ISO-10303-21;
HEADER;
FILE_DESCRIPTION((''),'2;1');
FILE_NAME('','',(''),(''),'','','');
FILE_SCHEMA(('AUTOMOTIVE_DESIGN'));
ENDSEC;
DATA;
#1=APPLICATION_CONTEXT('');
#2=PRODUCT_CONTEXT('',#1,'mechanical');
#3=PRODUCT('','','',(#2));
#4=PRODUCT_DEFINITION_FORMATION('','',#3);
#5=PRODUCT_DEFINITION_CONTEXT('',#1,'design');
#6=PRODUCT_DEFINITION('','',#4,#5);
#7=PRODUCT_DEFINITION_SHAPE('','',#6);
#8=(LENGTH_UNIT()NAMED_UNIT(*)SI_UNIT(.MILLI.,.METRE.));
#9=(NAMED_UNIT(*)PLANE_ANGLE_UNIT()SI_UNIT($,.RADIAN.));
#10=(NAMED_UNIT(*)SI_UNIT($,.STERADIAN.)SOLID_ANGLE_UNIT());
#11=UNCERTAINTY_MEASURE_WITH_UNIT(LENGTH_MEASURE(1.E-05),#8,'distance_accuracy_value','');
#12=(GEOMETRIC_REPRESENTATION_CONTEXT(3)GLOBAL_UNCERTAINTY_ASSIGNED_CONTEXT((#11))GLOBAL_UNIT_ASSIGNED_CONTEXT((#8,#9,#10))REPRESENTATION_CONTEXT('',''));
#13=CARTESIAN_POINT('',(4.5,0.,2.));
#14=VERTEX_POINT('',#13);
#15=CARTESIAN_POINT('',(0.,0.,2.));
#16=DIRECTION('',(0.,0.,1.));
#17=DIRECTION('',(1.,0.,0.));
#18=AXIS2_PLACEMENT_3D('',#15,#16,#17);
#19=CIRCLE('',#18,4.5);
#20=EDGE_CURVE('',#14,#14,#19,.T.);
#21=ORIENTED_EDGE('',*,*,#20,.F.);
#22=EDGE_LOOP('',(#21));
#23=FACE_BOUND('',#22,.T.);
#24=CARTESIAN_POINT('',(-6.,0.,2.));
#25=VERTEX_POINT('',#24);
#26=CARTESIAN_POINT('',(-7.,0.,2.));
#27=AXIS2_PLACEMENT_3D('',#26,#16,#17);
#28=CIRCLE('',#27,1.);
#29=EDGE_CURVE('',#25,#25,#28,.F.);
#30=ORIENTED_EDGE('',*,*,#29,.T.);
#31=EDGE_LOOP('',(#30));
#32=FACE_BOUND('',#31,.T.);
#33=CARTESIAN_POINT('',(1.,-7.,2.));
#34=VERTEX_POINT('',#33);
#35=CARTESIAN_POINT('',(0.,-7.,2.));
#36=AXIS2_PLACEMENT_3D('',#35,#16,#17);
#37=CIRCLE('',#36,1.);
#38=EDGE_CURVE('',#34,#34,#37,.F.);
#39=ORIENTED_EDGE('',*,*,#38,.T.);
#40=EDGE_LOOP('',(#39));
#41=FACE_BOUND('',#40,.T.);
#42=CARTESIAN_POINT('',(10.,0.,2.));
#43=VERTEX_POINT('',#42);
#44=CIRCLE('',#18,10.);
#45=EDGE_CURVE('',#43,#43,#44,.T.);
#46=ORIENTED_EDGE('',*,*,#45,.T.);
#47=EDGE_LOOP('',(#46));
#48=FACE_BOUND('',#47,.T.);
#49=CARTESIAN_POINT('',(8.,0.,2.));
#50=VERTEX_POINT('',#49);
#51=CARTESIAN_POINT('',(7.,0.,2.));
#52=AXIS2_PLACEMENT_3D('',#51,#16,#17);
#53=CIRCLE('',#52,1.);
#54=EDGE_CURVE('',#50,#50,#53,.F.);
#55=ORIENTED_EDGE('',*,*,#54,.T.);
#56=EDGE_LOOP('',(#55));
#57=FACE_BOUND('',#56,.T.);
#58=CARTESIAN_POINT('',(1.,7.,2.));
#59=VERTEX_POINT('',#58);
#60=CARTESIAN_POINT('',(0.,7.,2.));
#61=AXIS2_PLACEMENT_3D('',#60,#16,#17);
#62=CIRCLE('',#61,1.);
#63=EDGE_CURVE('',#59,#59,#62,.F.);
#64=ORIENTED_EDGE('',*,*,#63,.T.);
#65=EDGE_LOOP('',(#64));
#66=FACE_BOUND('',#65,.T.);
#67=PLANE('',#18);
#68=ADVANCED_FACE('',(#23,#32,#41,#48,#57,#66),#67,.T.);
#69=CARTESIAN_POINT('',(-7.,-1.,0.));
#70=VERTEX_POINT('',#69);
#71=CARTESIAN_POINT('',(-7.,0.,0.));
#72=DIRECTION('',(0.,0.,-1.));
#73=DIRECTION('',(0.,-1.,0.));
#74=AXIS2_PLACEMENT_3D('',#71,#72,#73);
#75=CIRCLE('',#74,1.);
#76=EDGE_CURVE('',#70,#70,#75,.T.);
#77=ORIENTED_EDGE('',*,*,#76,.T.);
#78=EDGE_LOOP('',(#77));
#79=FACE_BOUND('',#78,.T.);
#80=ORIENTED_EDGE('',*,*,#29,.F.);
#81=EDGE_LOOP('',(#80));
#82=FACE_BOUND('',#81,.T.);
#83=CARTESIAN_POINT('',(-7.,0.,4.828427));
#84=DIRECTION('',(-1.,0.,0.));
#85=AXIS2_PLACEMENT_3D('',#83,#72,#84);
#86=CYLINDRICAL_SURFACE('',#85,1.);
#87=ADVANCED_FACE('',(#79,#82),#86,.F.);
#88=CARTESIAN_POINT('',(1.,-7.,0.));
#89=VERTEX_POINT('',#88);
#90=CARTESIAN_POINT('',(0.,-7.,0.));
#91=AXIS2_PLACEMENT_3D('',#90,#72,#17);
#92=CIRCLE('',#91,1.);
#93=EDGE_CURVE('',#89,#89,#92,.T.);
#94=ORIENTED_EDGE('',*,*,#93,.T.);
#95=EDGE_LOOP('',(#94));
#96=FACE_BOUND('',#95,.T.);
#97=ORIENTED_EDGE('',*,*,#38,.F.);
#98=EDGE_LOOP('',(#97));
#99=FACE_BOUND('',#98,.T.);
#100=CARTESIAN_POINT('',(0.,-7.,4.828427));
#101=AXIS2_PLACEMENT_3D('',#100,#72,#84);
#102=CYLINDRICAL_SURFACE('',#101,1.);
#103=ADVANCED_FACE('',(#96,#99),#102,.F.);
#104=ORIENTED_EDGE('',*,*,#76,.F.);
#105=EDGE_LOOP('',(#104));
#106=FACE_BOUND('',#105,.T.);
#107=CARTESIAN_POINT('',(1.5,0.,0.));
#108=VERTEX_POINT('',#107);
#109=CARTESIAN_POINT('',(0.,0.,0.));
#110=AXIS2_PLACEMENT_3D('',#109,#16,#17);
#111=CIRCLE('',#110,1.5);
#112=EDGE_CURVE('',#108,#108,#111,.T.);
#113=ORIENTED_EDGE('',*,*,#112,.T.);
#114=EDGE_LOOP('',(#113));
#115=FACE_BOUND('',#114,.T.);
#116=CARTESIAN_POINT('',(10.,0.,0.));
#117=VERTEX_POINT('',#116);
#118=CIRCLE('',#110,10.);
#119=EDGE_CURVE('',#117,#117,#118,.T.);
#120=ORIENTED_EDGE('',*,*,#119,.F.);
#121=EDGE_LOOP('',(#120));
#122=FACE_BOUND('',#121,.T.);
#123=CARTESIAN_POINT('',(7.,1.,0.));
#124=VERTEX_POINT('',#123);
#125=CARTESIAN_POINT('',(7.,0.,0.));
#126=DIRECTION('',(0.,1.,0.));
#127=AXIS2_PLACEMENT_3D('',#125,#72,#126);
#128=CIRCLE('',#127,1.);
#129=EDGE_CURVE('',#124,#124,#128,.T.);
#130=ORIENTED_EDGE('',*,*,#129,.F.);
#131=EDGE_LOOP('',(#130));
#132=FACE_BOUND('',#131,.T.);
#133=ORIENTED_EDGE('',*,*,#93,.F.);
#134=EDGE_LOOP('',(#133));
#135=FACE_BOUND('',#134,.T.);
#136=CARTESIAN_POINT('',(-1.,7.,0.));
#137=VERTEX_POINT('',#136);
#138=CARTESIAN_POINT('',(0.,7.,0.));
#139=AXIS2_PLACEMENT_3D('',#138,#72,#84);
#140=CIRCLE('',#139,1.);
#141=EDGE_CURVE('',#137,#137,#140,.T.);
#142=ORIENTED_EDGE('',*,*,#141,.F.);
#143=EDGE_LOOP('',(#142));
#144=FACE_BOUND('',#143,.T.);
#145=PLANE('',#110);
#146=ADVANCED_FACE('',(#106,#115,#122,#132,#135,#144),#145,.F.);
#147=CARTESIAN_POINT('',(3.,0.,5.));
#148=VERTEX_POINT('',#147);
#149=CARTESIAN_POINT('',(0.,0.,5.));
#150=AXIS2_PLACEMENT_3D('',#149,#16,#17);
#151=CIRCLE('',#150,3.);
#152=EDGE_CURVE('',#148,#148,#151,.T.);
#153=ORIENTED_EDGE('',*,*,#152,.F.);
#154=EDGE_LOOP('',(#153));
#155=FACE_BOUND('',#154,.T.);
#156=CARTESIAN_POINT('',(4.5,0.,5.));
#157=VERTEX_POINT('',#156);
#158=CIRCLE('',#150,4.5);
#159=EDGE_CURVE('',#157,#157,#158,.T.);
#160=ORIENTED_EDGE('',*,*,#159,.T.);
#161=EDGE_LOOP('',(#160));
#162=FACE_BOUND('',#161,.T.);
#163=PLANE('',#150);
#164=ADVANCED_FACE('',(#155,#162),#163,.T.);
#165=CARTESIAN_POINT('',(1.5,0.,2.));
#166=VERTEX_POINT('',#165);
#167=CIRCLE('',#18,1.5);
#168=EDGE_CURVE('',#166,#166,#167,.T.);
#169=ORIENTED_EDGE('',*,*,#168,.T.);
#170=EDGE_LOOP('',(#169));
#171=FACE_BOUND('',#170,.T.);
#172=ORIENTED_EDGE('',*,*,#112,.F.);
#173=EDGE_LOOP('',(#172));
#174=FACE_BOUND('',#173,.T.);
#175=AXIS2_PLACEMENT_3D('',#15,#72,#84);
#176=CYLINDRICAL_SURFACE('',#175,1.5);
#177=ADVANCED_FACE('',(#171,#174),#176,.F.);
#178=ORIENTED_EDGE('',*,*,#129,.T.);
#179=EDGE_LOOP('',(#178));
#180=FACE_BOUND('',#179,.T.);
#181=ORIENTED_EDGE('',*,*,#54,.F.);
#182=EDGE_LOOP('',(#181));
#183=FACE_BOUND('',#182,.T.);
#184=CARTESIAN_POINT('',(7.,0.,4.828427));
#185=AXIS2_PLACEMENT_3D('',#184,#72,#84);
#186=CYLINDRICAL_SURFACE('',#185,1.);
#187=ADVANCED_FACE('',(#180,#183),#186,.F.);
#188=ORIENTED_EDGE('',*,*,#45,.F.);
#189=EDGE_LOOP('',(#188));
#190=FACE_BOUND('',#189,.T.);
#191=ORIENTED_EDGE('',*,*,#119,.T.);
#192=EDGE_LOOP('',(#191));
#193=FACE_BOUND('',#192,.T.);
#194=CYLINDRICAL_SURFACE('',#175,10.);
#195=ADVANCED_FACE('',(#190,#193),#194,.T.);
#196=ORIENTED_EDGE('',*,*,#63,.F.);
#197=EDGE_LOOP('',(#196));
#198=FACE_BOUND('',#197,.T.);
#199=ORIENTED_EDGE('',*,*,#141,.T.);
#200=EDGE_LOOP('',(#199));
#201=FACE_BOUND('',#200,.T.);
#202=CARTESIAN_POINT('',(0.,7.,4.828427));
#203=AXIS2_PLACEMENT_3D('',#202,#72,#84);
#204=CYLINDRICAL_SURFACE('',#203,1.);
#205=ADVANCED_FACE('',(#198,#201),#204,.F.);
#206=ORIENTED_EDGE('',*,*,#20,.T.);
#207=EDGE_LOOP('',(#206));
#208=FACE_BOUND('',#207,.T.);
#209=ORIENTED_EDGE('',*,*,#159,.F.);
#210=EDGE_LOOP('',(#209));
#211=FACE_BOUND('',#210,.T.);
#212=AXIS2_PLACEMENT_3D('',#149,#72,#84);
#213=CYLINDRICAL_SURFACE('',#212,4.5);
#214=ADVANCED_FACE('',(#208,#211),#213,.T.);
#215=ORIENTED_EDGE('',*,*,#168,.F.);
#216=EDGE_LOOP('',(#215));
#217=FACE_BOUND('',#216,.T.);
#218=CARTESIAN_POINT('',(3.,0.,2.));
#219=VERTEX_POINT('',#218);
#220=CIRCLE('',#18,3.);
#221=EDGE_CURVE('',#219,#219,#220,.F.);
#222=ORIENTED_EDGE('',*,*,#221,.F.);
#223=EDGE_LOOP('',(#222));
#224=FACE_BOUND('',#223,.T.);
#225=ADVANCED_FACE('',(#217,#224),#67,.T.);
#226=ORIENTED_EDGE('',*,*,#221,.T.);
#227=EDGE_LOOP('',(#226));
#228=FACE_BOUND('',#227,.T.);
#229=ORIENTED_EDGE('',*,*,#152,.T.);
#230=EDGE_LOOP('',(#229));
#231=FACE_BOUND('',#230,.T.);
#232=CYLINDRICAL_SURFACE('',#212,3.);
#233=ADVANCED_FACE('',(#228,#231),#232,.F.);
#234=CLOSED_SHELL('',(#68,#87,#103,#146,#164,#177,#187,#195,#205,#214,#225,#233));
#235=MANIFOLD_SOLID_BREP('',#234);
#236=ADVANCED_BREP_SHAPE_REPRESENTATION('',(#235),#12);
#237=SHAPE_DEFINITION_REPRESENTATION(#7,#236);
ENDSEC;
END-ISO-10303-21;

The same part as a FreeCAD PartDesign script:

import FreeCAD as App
import Part
import Sketcher

V = App.Vector

doc = App.newDocument("Part")
body = doc.addObject("PartDesign::Body", "Body")

sketch1 = body.newObject("Sketcher::SketchObject", "Sketch")
sketch1.AttachmentSupport = (doc.getObject("XY_Plane"), [""])
sketch1.MapMode = "FlatFace"
sketch1.addGeometry([
    Part.Circle(V(0, 0, 0), V(0, 0, 1), 10),
    Part.Circle(V(0, 0, 0), V(0, 0, 1), 1.5),
], False)
sketch1.addConstraint([
    Sketcher.Constraint("Coincident", 0, 3, -1, 1),
    Sketcher.Constraint("Coincident", 1, 3, -1, 1),
    Sketcher.Constraint("Diameter", 0, 20.0),
    Sketcher.Constraint("Diameter", 1, 3.0),
])
pad1 = body.newObject("PartDesign::Pad", "Pad")
pad1.Profile = sketch1
pad1.Length = 2

sketch2 = body.newObject("Sketcher::SketchObject", "Sketch001")
sketch2.AttachmentSupport = (doc.getObject("XY_Plane"), [""])
sketch2.MapMode = "FlatFace"
sketch2.AttachmentOffset = App.Placement(V(0, 0, 2), App.Rotation())
sketch2.addGeometry([
    Part.Circle(V(0, 0, 0), V(0, 0, 1), 4.5),
    Part.Circle(V(0, 0, 0), V(0, 0, 1), 3),
], False)
sketch2.addConstraint([
    Sketcher.Constraint("Coincident", 0, 3, -1, 1),
    Sketcher.Constraint("Coincident", 1, 3, -1, 1),
    Sketcher.Constraint("Diameter", 0, 9.0),
    Sketcher.Constraint("Diameter", 1, 6.0),
])
pad2 = body.newObject("PartDesign::Pad", "Pad001")
pad2.Profile = sketch2
pad2.Length = 3

sketch3 = body.newObject("Sketcher::SketchObject", "Sketch002")
sketch3.AttachmentSupport = (doc.getObject("XY_Plane"), [""])
sketch3.MapMode = "FlatFace"
sketch3.addGeometry(Part.Circle(V(0, 7, 0), V(0, 0, 1), 1), False)
sketch3.addConstraint([
    Sketcher.Constraint("PointOnObject", 0, 3, -2),
    Sketcher.Constraint("Diameter", 0, 2.0),
    Sketcher.Constraint("DistanceY", -1, 1, 0, 3, 7.0),
])
pocket1 = body.newObject("PartDesign::Pocket", "Pocket")
pocket1.Profile = sketch3
pocket1.Length = 2
pocket1.Reversed = True
doc.recompute()

polarpattern = body.newObject("PartDesign::PolarPattern", "PolarPattern")
polarpattern.Originals = [pocket1]
polarpattern.Axis = (doc.getObject("Z_Axis"), [""])
polarpattern.Angle = 360
polarpattern.Occurrences = 4
body.Tip = polarpattern

doc.recompute()
